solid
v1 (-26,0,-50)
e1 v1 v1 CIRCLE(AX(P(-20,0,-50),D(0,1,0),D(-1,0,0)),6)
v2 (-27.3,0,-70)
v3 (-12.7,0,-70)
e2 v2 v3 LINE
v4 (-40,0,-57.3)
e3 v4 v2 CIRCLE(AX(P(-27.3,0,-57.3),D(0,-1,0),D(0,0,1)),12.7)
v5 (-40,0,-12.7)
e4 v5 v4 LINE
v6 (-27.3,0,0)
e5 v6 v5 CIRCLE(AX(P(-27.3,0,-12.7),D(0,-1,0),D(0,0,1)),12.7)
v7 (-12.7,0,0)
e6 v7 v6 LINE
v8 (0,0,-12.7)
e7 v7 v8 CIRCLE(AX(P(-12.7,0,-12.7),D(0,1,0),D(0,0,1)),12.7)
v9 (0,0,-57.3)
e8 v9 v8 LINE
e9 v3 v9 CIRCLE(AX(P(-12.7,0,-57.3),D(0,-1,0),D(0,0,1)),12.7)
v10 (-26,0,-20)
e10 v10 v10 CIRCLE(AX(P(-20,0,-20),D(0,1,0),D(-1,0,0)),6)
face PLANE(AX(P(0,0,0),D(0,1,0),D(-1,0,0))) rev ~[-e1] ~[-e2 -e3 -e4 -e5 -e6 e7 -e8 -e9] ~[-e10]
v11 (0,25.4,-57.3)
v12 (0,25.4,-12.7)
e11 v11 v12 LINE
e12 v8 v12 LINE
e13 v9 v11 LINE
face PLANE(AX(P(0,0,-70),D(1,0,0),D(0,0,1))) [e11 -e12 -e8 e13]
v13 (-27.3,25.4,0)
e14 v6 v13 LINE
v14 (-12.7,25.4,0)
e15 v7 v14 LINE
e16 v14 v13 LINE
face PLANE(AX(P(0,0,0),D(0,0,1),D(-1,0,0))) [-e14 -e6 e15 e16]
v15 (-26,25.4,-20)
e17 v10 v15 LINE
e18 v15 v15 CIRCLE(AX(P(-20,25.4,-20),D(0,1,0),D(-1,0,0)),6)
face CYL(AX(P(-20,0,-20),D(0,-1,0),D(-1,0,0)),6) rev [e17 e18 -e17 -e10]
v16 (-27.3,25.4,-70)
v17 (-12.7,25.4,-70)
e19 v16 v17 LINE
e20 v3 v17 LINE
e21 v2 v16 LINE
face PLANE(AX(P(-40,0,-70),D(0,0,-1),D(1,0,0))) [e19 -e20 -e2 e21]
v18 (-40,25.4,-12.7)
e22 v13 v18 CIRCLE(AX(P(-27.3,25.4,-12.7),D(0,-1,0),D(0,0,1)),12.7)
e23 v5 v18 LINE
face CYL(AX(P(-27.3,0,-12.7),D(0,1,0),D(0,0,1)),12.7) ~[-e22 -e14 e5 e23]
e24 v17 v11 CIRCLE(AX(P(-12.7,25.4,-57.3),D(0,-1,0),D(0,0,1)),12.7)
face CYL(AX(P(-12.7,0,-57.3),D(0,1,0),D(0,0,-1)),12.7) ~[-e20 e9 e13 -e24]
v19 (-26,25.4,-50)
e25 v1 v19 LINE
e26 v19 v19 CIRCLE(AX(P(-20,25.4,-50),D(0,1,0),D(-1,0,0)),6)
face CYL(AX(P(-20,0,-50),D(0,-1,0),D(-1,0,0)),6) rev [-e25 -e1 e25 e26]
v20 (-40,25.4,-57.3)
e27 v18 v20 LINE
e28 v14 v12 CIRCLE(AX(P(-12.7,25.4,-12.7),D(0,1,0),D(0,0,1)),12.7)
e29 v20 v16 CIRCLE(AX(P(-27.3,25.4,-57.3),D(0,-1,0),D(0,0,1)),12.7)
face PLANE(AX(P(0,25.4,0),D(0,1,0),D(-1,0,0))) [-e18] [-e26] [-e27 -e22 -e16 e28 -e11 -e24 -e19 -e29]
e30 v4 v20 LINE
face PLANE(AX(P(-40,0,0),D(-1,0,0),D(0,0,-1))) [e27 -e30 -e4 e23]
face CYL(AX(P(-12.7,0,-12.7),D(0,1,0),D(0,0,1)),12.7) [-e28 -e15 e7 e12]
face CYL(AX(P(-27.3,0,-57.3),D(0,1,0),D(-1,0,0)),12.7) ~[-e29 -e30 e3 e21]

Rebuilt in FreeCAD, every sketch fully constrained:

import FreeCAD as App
import Part
import Sketcher
Q = App.Units.Quantity


def edges_at(feature, points):
    """Names of the edges that pass closest to the given points."""
    edges = feature.Shape.Edges
    near = lambda p: min(range(len(edges)), key=lambda i: edges[i].distToShape(Part.Vertex(*p))[0])
    return sorted({f"Edge{near(p) + 1}" for p in points})

doc = App.newDocument("Part")
body = doc.addObject("PartDesign::Body", "Body")

sketch1 = body.newObject("Sketcher::SketchObject", "Sketch")
sketch1.AttachmentSupport = (doc.getObject("XZ_Plane"), [""])
sketch1.MapMode = "FlatFace"
sketch1.addGeometry(Part.LineSegment(App.Vector(-40, 0, 0), App.Vector(0, 0, 0)), False)
sketch1.addGeometry(Part.LineSegment(App.Vector(0, 0, 0), App.Vector(0, -70, 0)), False)
sketch1.addGeometry(Part.LineSegment(App.Vector(0, -70, 0), App.Vector(-40, -70, 0)), False)
sketch1.addGeometry(Part.LineSegment(App.Vector(-40, -70, 0), App.Vector(-40, 0, 0)), False)
sketch1.addGeometry(Part.Circle(App.Vector(-20, -50, 0), App.Vector(0, 0, 1), 6), False)
sketch1.addGeometry(Part.Circle(App.Vector(-20, -20, 0), App.Vector(0, 0, 1), 6), False)
sketch1.addConstraint(Sketcher.Constraint("Coincident", 0, 2, 1, 1))
sketch1.addConstraint(Sketcher.Constraint("Coincident", 1, 2, 2, 1))
sketch1.addConstraint(Sketcher.Constraint("Coincident", 2, 2, 3, 1))
sketch1.addConstraint(Sketcher.Constraint("Coincident", 3, 2, 0, 1))
sketch1.addConstraint(Sketcher.Constraint("Horizontal", 0))
sketch1.addConstraint(Sketcher.Constraint("Vertical", 1))
sketch1.addConstraint(Sketcher.Constraint("Horizontal", 2))
sketch1.addConstraint(Sketcher.Constraint("Vertical", 3))
sketch1.addConstraint(Sketcher.Constraint("Coincident", 0, 2, -1, 1))
sketch1.addConstraint(Sketcher.Constraint("Equal", 4, 5))
sketch1.addConstraint(Sketcher.Constraint("Vertical", 4, 3, 5, 3))
sketch1.addConstraint(Sketcher.Constraint("Diameter", 4, Q("12 mm")))
sketch1.addConstraint(Sketcher.Constraint("DistanceX", 0, 1, 0, 2, Q("1.5748 in")))
sketch1.addConstraint(Sketcher.Constraint("DistanceY", 1, 2, 1, 1, Q("2.7559 in")))
sketch1.addConstraint(Sketcher.Constraint("DistanceX", 4, 3, -1, 1, Q("0.7874 in")))
sketch1.addConstraint(Sketcher.Constraint("DistanceY", 5, 3, -1, 1, Q("0.7874 in")))
sketch1.addConstraint(Sketcher.Constraint("DistanceY", 4, 3, 5, 3, Q("1.1811 in")))
pad1 = body.newObject("PartDesign::Pad", "Pad")
pad1.Profile = sketch1
pad1.Length = Q("1 in")
pad1.Reversed = True
doc.recompute()

fillet = body.newObject("PartDesign::Fillet", "Fillet")
fillet.Base = (pad1, edges_at(pad1, [
    (0, 12.7, -70),
    (-40, 12.7, -70),
    (0, 12.7, 0),
    (-40, 12.7, 0),
]))
fillet.Radius = Q("0.5 in")

doc.recompute()
